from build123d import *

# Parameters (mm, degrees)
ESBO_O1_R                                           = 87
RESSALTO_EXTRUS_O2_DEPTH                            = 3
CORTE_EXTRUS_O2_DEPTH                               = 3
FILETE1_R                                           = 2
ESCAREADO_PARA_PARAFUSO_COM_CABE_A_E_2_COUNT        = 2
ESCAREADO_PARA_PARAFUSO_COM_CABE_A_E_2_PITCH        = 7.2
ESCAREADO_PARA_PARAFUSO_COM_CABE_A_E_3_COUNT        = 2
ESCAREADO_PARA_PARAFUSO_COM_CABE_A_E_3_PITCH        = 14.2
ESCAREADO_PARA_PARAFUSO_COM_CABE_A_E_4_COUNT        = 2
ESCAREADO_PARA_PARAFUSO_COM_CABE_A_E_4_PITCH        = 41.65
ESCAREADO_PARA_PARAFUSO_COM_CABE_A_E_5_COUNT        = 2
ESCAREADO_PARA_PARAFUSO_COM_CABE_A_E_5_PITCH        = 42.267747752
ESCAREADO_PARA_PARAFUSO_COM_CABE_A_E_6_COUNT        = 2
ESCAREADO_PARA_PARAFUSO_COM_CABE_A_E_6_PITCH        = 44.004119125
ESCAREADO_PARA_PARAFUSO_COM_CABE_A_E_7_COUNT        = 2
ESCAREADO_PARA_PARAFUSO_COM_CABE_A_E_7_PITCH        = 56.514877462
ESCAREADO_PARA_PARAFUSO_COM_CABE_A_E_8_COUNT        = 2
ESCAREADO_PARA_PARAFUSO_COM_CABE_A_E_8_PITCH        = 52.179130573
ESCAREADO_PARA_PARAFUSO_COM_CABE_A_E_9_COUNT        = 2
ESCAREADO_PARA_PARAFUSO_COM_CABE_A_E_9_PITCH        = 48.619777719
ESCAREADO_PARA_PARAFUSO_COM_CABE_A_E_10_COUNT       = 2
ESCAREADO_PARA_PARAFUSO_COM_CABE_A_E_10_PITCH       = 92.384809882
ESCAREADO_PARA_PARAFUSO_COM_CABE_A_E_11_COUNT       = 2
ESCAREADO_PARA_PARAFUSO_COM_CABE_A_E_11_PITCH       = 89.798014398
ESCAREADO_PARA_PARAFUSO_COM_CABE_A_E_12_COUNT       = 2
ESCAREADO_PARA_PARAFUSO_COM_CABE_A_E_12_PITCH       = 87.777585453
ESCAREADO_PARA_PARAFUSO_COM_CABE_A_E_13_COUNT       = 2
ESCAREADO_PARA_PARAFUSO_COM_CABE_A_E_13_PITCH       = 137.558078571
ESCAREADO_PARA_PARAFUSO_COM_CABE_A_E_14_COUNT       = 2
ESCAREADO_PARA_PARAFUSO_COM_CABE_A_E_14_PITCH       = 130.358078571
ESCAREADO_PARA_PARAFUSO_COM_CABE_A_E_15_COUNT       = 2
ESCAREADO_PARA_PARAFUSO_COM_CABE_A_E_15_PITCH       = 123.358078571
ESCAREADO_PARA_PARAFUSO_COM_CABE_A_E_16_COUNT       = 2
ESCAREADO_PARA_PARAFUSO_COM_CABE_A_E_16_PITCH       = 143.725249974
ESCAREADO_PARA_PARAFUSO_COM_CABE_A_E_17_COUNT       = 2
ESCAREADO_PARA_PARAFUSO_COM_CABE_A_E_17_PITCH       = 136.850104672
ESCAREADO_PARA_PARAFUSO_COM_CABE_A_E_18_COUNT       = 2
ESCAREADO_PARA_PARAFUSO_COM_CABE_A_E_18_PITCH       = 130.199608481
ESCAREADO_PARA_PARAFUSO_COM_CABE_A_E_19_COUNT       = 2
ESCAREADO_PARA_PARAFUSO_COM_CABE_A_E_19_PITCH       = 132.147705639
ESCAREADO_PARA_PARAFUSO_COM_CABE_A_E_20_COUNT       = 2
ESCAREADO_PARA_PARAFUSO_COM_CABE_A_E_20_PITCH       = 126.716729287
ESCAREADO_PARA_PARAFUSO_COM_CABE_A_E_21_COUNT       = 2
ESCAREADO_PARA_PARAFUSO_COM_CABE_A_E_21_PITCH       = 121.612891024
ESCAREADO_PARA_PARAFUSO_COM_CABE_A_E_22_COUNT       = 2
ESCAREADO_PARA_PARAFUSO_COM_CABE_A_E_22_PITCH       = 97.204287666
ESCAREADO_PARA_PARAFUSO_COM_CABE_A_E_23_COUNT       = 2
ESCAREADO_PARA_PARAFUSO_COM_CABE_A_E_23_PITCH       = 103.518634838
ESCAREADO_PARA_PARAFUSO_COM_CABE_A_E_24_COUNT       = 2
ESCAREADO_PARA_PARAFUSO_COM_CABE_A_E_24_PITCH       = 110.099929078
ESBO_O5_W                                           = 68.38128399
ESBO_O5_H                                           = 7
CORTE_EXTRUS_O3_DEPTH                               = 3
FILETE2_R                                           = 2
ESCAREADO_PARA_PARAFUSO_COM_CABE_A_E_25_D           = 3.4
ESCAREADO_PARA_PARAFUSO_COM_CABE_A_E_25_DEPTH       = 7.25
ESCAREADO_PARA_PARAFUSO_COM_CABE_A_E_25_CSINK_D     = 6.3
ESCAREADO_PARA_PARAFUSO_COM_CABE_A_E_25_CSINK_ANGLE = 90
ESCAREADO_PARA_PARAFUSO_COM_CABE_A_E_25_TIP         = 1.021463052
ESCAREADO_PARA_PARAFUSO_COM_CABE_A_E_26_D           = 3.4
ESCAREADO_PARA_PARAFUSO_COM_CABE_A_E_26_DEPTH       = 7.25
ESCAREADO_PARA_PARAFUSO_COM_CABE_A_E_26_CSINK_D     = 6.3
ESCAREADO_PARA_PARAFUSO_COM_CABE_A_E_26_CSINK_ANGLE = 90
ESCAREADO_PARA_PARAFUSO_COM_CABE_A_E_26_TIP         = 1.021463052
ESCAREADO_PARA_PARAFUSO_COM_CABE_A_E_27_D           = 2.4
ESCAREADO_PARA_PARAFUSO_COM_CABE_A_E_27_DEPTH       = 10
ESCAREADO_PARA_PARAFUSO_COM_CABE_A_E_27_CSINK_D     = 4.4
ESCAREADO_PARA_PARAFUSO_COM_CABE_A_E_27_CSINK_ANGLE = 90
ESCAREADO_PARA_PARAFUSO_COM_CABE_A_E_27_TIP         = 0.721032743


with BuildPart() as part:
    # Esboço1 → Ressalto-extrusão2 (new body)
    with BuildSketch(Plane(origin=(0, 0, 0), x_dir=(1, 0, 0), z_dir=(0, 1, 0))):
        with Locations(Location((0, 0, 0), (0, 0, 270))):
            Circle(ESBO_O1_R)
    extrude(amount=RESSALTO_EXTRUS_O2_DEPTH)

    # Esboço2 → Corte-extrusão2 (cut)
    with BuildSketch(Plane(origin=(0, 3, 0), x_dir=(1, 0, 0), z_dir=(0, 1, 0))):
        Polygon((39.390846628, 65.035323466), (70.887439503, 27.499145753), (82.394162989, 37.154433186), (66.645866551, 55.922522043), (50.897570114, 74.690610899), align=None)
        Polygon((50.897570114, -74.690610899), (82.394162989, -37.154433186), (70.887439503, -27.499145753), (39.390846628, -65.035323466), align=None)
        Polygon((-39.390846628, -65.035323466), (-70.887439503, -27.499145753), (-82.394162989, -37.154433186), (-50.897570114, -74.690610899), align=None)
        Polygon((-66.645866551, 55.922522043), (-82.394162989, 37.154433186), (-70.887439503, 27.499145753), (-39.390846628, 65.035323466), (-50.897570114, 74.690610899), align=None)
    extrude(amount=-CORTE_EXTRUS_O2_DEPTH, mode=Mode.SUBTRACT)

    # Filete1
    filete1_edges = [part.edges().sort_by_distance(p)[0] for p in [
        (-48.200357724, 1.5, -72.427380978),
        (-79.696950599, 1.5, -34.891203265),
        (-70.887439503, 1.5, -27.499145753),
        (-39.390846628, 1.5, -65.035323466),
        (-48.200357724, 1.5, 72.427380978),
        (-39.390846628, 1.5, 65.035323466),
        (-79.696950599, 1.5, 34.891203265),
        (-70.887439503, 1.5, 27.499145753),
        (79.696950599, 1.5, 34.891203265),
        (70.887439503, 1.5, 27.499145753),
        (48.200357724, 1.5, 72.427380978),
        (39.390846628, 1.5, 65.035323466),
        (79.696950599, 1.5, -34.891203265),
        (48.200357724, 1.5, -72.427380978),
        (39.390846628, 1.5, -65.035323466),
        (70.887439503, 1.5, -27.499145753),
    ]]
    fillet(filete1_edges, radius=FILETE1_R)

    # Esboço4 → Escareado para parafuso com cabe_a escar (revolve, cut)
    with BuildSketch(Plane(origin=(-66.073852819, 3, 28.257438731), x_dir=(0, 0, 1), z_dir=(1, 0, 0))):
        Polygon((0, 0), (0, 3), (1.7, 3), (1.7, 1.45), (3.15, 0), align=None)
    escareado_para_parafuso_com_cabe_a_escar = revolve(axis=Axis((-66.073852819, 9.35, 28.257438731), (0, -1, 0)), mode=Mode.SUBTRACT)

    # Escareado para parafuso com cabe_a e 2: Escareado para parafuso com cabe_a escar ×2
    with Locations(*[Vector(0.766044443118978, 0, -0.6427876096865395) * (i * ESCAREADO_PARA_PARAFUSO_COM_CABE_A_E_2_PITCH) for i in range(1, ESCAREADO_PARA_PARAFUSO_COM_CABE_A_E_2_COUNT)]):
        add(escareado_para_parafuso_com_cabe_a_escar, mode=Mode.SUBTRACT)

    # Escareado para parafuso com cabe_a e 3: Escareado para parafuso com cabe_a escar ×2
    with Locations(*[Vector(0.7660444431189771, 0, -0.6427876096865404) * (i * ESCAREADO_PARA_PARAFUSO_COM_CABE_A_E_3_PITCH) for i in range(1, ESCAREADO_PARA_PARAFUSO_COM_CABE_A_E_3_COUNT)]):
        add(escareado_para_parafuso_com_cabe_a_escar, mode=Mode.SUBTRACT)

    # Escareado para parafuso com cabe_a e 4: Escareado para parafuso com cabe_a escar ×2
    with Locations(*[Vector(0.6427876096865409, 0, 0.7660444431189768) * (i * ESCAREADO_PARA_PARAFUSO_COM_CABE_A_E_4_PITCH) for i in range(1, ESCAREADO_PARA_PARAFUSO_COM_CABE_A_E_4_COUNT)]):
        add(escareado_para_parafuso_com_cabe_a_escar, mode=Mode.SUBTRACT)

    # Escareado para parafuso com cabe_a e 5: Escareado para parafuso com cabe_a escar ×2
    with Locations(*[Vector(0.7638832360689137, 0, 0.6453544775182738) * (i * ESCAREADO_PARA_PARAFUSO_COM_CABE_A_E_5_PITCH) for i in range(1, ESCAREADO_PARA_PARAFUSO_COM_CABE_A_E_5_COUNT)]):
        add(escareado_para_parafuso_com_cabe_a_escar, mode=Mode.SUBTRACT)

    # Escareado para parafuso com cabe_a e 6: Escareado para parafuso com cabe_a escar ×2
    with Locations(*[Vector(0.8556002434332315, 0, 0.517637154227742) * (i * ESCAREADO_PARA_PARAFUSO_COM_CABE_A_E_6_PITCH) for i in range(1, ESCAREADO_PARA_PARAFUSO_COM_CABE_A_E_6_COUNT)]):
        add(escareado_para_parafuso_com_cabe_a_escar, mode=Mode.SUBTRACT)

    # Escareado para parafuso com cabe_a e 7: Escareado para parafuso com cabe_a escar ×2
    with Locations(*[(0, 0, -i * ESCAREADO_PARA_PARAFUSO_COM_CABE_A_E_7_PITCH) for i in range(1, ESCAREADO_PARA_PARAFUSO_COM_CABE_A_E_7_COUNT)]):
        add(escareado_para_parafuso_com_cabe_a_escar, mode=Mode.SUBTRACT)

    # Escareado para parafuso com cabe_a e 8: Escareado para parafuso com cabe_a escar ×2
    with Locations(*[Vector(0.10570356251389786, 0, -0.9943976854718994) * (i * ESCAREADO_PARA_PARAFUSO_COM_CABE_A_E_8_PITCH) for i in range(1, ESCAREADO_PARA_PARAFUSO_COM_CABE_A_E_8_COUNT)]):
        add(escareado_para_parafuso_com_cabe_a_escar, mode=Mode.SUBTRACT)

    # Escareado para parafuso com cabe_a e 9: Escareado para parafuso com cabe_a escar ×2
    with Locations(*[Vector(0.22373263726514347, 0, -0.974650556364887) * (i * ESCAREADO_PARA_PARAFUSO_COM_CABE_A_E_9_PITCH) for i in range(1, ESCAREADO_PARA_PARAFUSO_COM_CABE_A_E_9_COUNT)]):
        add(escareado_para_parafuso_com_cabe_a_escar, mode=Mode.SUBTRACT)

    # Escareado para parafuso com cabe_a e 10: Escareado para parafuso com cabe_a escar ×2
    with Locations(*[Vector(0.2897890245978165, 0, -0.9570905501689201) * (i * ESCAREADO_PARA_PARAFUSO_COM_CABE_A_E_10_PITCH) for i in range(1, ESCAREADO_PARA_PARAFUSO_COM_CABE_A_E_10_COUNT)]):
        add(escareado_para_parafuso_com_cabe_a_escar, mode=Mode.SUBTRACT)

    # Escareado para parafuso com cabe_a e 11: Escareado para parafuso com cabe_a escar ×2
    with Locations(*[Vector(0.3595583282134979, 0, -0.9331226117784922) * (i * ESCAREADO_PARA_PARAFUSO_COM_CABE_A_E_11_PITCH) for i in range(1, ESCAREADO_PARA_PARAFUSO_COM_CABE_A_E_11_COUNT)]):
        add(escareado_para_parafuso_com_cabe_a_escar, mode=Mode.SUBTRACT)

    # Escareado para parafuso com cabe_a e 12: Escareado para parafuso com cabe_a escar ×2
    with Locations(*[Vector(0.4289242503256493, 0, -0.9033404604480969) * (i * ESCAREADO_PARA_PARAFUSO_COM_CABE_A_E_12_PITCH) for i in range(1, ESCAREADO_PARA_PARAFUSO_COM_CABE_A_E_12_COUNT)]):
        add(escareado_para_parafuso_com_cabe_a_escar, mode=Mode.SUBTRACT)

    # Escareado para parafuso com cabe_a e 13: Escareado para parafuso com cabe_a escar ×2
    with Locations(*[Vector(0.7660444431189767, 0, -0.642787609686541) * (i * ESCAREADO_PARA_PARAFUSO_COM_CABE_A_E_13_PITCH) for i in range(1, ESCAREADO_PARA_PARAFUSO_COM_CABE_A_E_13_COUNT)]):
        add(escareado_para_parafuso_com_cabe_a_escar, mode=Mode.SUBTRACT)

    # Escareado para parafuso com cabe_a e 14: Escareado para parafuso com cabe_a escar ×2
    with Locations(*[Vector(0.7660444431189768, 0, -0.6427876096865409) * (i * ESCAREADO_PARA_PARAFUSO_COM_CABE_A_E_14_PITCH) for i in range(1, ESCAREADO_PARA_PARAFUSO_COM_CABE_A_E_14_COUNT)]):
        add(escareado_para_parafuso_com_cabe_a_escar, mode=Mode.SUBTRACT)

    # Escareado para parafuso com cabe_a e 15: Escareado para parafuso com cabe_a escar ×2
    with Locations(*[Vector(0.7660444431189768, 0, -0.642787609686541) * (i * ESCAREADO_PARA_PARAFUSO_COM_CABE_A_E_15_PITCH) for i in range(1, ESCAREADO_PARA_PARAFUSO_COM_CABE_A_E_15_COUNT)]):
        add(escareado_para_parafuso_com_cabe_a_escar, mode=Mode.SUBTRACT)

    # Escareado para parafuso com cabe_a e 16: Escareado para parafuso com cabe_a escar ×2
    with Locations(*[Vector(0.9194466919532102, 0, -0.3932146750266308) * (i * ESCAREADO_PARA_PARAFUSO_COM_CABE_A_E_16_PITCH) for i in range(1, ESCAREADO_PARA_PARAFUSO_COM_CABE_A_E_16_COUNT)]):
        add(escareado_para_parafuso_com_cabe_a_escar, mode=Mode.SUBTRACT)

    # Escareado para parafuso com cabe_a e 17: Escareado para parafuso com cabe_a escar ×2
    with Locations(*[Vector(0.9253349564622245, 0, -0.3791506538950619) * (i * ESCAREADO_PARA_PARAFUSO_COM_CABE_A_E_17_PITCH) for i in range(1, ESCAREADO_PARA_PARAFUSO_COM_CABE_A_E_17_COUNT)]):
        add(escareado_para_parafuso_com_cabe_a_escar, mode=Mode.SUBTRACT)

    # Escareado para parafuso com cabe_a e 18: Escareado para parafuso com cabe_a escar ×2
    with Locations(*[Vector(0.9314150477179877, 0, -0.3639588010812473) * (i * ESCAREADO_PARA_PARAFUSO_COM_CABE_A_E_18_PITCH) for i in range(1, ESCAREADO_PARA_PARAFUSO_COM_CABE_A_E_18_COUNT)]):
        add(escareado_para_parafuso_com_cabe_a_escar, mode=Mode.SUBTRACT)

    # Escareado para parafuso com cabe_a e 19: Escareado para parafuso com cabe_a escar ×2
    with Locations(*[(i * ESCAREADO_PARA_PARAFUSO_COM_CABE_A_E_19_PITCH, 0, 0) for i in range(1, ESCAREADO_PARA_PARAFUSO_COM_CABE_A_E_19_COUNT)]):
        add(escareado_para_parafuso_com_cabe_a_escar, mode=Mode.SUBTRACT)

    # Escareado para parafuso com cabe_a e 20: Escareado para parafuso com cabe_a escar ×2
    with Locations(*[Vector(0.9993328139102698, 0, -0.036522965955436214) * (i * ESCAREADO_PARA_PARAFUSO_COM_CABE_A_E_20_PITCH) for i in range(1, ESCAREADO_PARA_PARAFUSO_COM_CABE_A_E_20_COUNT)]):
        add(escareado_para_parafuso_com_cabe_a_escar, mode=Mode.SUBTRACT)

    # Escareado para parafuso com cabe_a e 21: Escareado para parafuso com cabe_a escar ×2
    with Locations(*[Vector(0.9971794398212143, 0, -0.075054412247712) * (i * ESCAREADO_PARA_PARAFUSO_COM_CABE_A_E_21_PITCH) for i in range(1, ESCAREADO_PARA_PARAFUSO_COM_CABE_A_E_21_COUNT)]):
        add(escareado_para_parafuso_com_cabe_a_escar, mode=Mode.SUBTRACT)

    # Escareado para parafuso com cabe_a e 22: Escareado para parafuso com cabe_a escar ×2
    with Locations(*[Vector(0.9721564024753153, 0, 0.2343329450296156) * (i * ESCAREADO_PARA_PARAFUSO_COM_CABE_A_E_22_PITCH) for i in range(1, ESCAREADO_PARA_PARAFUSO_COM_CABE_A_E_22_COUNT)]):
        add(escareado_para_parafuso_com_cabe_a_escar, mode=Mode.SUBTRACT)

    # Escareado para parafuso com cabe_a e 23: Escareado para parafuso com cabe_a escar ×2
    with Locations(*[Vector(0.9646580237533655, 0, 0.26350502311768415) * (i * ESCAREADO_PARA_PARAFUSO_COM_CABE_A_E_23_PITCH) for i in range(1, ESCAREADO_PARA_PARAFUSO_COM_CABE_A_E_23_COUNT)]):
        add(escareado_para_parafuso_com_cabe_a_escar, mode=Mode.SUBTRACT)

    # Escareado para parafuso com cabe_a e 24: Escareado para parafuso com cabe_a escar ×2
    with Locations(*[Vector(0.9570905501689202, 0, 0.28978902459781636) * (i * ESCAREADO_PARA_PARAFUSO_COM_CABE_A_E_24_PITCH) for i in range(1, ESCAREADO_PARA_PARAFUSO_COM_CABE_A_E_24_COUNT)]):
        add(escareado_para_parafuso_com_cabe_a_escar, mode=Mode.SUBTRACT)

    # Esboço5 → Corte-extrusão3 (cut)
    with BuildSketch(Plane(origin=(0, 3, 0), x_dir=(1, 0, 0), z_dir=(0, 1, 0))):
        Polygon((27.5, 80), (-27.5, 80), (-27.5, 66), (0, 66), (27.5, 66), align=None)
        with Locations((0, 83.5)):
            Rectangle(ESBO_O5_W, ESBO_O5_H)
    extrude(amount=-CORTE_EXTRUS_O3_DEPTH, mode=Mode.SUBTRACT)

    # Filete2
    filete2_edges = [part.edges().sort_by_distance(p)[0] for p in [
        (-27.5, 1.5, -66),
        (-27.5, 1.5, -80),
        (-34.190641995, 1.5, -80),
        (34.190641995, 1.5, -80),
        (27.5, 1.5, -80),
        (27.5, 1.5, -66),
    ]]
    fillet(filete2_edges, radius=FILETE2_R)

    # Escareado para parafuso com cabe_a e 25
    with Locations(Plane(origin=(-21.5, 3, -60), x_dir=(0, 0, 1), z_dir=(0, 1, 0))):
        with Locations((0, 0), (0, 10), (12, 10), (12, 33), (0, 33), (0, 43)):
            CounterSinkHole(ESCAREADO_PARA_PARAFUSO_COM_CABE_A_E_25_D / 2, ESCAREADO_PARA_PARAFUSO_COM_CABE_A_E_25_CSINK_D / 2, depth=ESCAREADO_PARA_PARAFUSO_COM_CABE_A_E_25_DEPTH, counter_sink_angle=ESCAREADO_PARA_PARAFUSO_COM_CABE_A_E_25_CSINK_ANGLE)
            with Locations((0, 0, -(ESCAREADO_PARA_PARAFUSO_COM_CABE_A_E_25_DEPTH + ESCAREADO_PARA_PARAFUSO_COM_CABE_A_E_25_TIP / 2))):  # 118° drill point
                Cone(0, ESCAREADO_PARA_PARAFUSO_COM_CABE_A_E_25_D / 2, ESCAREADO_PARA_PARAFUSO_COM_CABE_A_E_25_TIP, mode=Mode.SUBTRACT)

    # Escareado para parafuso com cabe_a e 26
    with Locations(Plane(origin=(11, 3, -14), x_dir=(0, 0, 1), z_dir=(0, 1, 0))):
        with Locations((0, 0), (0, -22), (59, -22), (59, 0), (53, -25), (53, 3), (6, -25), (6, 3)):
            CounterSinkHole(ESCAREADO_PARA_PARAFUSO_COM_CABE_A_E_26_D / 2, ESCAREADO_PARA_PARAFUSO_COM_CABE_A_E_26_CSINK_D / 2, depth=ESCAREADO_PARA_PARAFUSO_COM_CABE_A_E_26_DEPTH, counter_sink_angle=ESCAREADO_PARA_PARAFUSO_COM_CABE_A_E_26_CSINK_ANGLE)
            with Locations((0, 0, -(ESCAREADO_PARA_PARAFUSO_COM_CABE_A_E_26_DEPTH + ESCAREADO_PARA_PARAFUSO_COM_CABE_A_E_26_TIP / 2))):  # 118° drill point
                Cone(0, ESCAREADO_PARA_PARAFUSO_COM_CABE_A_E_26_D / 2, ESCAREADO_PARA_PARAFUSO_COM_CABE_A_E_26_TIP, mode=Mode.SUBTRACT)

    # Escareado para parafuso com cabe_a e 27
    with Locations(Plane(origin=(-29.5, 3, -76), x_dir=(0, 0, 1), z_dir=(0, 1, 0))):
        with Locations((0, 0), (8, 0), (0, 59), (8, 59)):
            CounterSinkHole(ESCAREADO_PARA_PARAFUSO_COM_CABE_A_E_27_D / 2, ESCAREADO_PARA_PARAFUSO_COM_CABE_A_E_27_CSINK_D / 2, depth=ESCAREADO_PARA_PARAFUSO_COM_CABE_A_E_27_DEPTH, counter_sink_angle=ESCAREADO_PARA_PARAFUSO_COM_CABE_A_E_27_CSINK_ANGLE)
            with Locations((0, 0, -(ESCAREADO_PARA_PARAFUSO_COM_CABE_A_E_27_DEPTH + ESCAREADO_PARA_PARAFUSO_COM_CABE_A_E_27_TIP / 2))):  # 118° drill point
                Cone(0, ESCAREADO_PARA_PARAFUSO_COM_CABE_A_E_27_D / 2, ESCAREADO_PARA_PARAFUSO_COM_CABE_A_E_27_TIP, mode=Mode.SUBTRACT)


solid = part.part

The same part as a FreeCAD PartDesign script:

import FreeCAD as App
import Part
import Sketcher

V = App.Vector
Q = App.Units.Quantity


def edges_at(feature, points):
    """Names of the edges that pass closest to the given points."""
    edges = feature.Shape.Edges
    near = lambda p: min(range(len(edges)), key=lambda i: edges[i].distToShape(Part.Vertex(*p))[0])
    return sorted({f"Edge{near(p) + 1}" for p in points})

doc = App.newDocument("Part")
body = doc.addObject("PartDesign::Body", "Body")

sketch1 = doc.addObject("Sketcher::SketchObject", "Sketch")
body.addObject(sketch1)
sketch1.AttachmentSupport = (doc.XZ_Plane, [""])
sketch1.MapMode = "FlatFace"
sketch1.addGeometry(Part.Circle(V(0, 0, 0), V(0, 0, 1), 87), False)
sketch1.addConstraint([
    Sketcher.Constraint("Coincident", 0, 3, -1, 1),
    Sketcher.Constraint("Diameter", 0, 174.0),
])
pad1 = doc.addObject("PartDesign::Pad", "Pad")
body.addObject(pad1)
pad1.Profile = sketch1
pad1.Length = 3
pad1.Reversed = True

sketch2 = doc.addObject("Sketcher::SketchObject", "Sketch001")
body.addObject(sketch2)
sketch2.AttachmentSupport = (doc.XZ_Plane, [""])
sketch2.MapMode = "FlatFace"
sketch2.AttachmentOffset = App.Placement(V(0, 0, -3), App.Rotation())
sketch2.addGeometry([
    Part.LineSegment(V(39, -65, 0), V(71, -27, 0)),
    Part.LineSegment(V(71, -27, 0), V(82, -37, 0)),
    Part.LineSegment(V(82, -37, 0), V(67, -56, 0)),
    Part.LineSegment(V(67, -56, 0), V(51, -75, 0)),
    Part.LineSegment(V(51, -75, 0), V(39, -65, 0)),
    Part.LineSegment(V(51, 75, 0), V(82, 37, 0)),
    Part.LineSegment(V(82, 37, 0), V(71, 27, 0)),
    Part.LineSegment(V(71, 27, 0), V(39, 65, 0)),
    Part.LineSegment(V(39, 65, 0), V(51, 75, 0)),
    Part.LineSegment(V(-39, 65, 0), V(-71, 27, 0)),
    Part.LineSegment(V(-71, 27, 0), V(-82, 37, 0)),
    Part.LineSegment(V(-82, 37, 0), V(-51, 75, 0)),
    Part.LineSegment(V(-51, 75, 0), V(-39, 65, 0)),
    Part.LineSegment(V(-67, -56, 0), V(-82, -37, 0)),
    Part.LineSegment(V(-82, -37, 0), V(-71, -27, 0)),
    Part.LineSegment(V(-71, -27, 0), V(-39, -65, 0)),
    Part.LineSegment(V(-39, -65, 0), V(-51, -75, 0)),
    Part.LineSegment(V(-51, -75, 0), V(-67, -56, 0)),
], False)
sketch2.addConstraint([
    Sketcher.Constraint("Coincident", 0, 2, 1, 1),
    Sketcher.Constraint("Coincident", 1, 2, 2, 1),
    Sketcher.Constraint("Coincident", 2, 2, 3, 1),
    Sketcher.Constraint("Coincident", 3, 2, 4, 1),
    Sketcher.Constraint("Coincident", 4, 2, 0, 1),
    Sketcher.Constraint("Coincident", 5, 2, 6, 1),
    Sketcher.Constraint("Coincident", 6, 2, 7, 1),
    Sketcher.Constraint("Coincident", 7, 2, 8, 1),
    Sketcher.Constraint("Coincident", 8, 2, 5, 1),
    Sketcher.Constraint("Coincident", 9, 2, 10, 1),
    Sketcher.Constraint("Coincident", 10, 2, 11, 1),
    Sketcher.Constraint("Coincident", 11, 2, 12, 1),
    Sketcher.Constraint("Coincident", 12, 2, 9, 1),
    Sketcher.Constraint("Coincident", 13, 2, 14, 1),
    Sketcher.Constraint("Coincident", 14, 2, 15, 1),
    Sketcher.Constraint("Coincident", 15, 2, 16, 1),
    Sketcher.Constraint("Coincident", 16, 2, 17, 1),
    Sketcher.Constraint("Coincident", 17, 2, 13, 1),
    Sketcher.Constraint("Symmetric", 0, 2, 9, 2, -1, 1),
    Sketcher.Constraint("Symmetric", 1, 2, 10, 2, -1, 1),
    Sketcher.Constraint("Symmetric", 3, 2, 11, 2, -1, 1),
    Sketcher.Constraint("Symmetric", 4, 2, 12, 2, -1, 1),
    Sketcher.Constraint("Symmetric", 5, 2, 13, 2, -1, 1),
    Sketcher.Constraint("Symmetric", 6, 2, 14, 2, -1, 1),
    Sketcher.Constraint("Symmetric", 7, 2, 15, 2, -1, 1),
    Sketcher.Constraint("Symmetric", 8, 2, 16, 2, -1, 1),
    Sketcher.Constraint("Symmetric", 6, 2, 9, 2, -2),
    Sketcher.Constraint("Symmetric", 5, 2, 10, 2, -2),
    Sketcher.Constraint("Symmetric", 8, 2, 11, 2, -2),
    Sketcher.Constraint("Symmetric", 7, 2, 12, 2, -2),
    Sketcher.Constraint("Symmetric", 2, 2, 17, 2, -2),
    Sketcher.Constraint("Perpendicular", 0, 1),
    Sketcher.Constraint("Perpendicular", 1, 2),
    Sketcher.Constraint("Parallel", 2, 3),
    Sketcher.Constraint("Perpendicular", 3, 4),
    Sketcher.Constraint("Equal", 2, 3),
    Sketcher.Constraint("Angle", 0, Q("50 deg")),
    Sketcher.Constraint("Distance", 0, 49.0),
    Sketcher.Constraint("DistanceY", 4, 2, 2, 2, 9.112801),
    Sketcher.Constraint("DistanceX", -1, 1, 0, 2, 70.88744),
    Sketcher.Constraint("DistanceY", 3, 2, -1, 1, 74.690611),
])
pocket1 = doc.addObject("PartDesign::Pocket", "Pocket")
body.addObject(pocket1)
pocket1.Profile = sketch2
pocket1.Length = 3
pocket1.Reversed = True
doc.recompute()

fillet = doc.addObject("PartDesign::Fillet", "Fillet")
body.addObject(fillet)
fillet.Base = (pocket1, edges_at(pocket1, [
    (-48.2, 1.5, -72.427),
    (-79.697, 1.5, -34.891),
    (-70.887, 1.5, -27.499),
    (-39.391, 1.5, -65.035),
    (-48.2, 1.5, 72.427),
    (-39.391, 1.5, 65.035),
    (-79.697, 1.5, 34.891),
    (-70.887, 1.5, 27.499),
    (79.697, 1.5, 34.891),
    (70.887, 1.5, 27.499),
    (48.2, 1.5, 72.427),
    (39.391, 1.5, 65.035),
    (79.697, 1.5, -34.891),
    (48.2, 1.5, -72.427),
    (39.391, 1.5, -65.035),
    (70.887, 1.5, -27.499),
]))
fillet.Radius = 2

sketch3 = doc.addObject("Sketcher::SketchObject", "Sketch002")
body.addObject(sketch3)
sketch3.AttachmentSupport = (doc.YZ_Plane, [""])
sketch3.MapMode = "FlatFace"
sketch3.AttachmentOffset = App.Placement(V(0, 0, -66.073853), App.Rotation())
sketch3.addGeometry([
    Part.LineSegment(V(0, 28.3, 0), V(3, 28.3, 0)),
    Part.LineSegment(V(3, 28.3, 0), V(3, 31.4, 0)),
    Part.LineSegment(V(3, 31.4, 0), V(1.6, 30, 0)),
    Part.LineSegment(V(1.6, 30, 0), V(0, 30, 0)),
    Part.LineSegment(V(0, 30, 0), V(0, 28.3, 0)),
], False)
sketch3.addGeometry(Part.LineSegment(V(3, 28.3, 0), V(0, 28.3, 0)), True)
sketch3.addConstraint([
    Sketcher.Constraint("Coincident", 0, 2, 1, 1),
    Sketcher.Constraint("Coincident", 1, 2, 2, 1),
    Sketcher.Constraint("Coincident", 2, 2, 3, 1),
    Sketcher.Constraint("Coincident", 3, 2, 4, 1),
    Sketcher.Constraint("Coincident", 4, 2, 0, 1),
    Sketcher.Constraint("Horizontal", 0),
    Sketcher.Constraint("Vertical", 1),
    Sketcher.Constraint("Horizontal", 3),
    Sketcher.Constraint("Vertical", 4),
    Sketcher.Constraint("Horizontal", 5),
    Sketcher.Constraint("Coincident", 5, 1, 0, 2),
    Sketcher.Constraint("PointOnObject", 3, 2, -2),
    Sketcher.Constraint("PointOnObject", 5, 2, -2),
    Sketcher.Constraint("DistanceX", 0, 1, 0, 2, 3.0),
    Sketcher.Constraint("Angle", 2, Q("-135 deg")),
    Sketcher.Constraint("DistanceY", 4, 2, 4, 1, 1.7),
    Sketcher.Constraint("DistanceX", 3, 2, 3, 1, 1.55),
    Sketcher.Constraint("DistanceY", -1, 1, 0, 2, 28.257439),
])
groove = doc.addObject("PartDesign::Groove", "Groove")
body.addObject(groove)
groove.Profile = sketch3
groove.ReferenceAxis = (sketch3, ["Axis0"])
groove.Angle = 360
doc.recompute()

datumline = doc.addObject("PartDesign::Line", "DatumLine")
body.addObject(datumline)
datumline.Placement = App.Placement(V(0, 0, 0), App.Rotation(V(0, 0, 1), V(0.766044443, 0, -0.64278761)))
linearpattern = doc.addObject("PartDesign::LinearPattern", "LinearPattern")
body.addObject(linearpattern)
linearpattern.Originals = [groove]
linearpattern.Direction = (datumline, [""])
linearpattern.Mode = "offset"
linearpattern.Offset = 7.2
linearpattern.Occurrences = 2
body.Tip = linearpattern
doc.recompute()

datumline2 = doc.addObject("PartDesign::Line", "DatumLine001")
body.addObject(datumline2)
datumline2.Placement = App.Placement(V(0, 0, 0), App.Rotation(V(0, 0, 1), V(0.766044443, 0, -0.64278761)))
linearpattern2 = doc.addObject("PartDesign::LinearPattern", "LinearPattern001")
body.addObject(linearpattern2)
linearpattern2.Originals = [groove]
linearpattern2.Direction = (datumline2, [""])
linearpattern2.Mode = "offset"
linearpattern2.Offset = 14.2
linearpattern2.Occurrences = 2
body.Tip = linearpattern2
doc.recompute()

datumline3 = doc.addObject("PartDesign::Line", "DatumLine002")
body.addObject(datumline3)
datumline3.Placement = App.Placement(V(0, 0, 0), App.Rotation(V(0, 0, 1), V(0.64278761, 0, 0.766044443)))
linearpattern3 = doc.addObject("PartDesign::LinearPattern", "LinearPattern002")
body.addObject(linearpattern3)
linearpattern3.Originals = [groove]
linearpattern3.Direction = (datumline3, [""])
linearpattern3.Mode = "offset"
linearpattern3.Offset = 41.65
linearpattern3.Occurrences = 2
body.Tip = linearpattern3
doc.recompute()

datumline4 = doc.addObject("PartDesign::Line", "DatumLine003")
body.addObject(datumline4)
datumline4.Placement = App.Placement(V(0, 0, 0), App.Rotation(V(0, 0, 1), V(0.763883236, 0, 0.645354478)))
linearpattern4 = doc.addObject("PartDesign::LinearPattern", "LinearPattern003")
body.addObject(linearpattern4)
linearpattern4.Originals = [groove]
linearpattern4.Direction = (datumline4, [""])
linearpattern4.Mode = "offset"
linearpattern4.Offset = 42.267748
linearpattern4.Occurrences = 2
body.Tip = linearpattern4
doc.recompute()

datumline5 = doc.addObject("PartDesign::Line", "DatumLine004")
body.addObject(datumline5)
datumline5.Placement = App.Placement(V(0, 0, 0), App.Rotation(V(0, 0, 1), V(0.855600243, 0, 0.517637154)))
linearpattern5 = doc.addObject("PartDesign::LinearPattern", "LinearPattern004")
body.addObject(linearpattern5)
linearpattern5.Originals = [groove]
linearpattern5.Direction = (datumline5, [""])
linearpattern5.Mode = "offset"
linearpattern5.Offset = 44.004119
linearpattern5.Occurrences = 2
body.Tip = linearpattern5
doc.recompute()

linearpattern6 = doc.addObject("PartDesign::LinearPattern", "LinearPattern005")
body.addObject(linearpattern6)
linearpattern6.Originals = [groove]
linearpattern6.Direction = (doc.Z_Axis, [""])
linearpattern6.Mode = "offset"
linearpattern6.Offset = 56.514877
linearpattern6.Occurrences = 2
linearpattern6.Reversed = True
body.Tip = linearpattern6
doc.recompute()

datumline6 = doc.addObject("PartDesign::Line", "DatumLine005")
body.addObject(datumline6)
datumline6.Placement = App.Placement(V(0, 0, 0), App.Rotation(V(0, 0, 1), V(0.105703563, 0, -0.994397685)))
linearpattern7 = doc.addObject("PartDesign::LinearPattern", "LinearPattern006")
body.addObject(linearpattern7)
linearpattern7.Originals = [groove]
linearpattern7.Direction = (datumline6, [""])
linearpattern7.Mode = "offset"
linearpattern7.Offset = 52.179131
linearpattern7.Occurrences = 2
body.Tip = linearpattern7
doc.recompute()

datumline7 = doc.addObject("PartDesign::Line", "DatumLine006")
body.addObject(datumline7)
datumline7.Placement = App.Placement(V(0, 0, 0), App.Rotation(V(0, 0, 1), V(0.223732637, 0, -0.974650556)))
linearpattern8 = doc.addObject("PartDesign::LinearPattern", "LinearPattern007")
body.addObject(linearpattern8)
linearpattern8.Originals = [groove]
linearpattern8.Direction = (datumline7, [""])
linearpattern8.Mode = "offset"
linearpattern8.Offset = 48.619778
linearpattern8.Occurrences = 2
body.Tip = linearpattern8
doc.recompute()

datumline8 = doc.addObject("PartDesign::Line", "DatumLine007")
body.addObject(datumline8)
datumline8.Placement = App.Placement(V(0, 0, 0), App.Rotation(V(0, 0, 1), V(0.289789025, 0, -0.95709055)))
linearpattern9 = doc.addObject("PartDesign::LinearPattern", "LinearPattern008")
body.addObject(linearpattern9)
linearpattern9.Originals = [groove]
linearpattern9.Direction = (datumline8, [""])
linearpattern9.Mode = "offset"
linearpattern9.Offset = 92.38481
linearpattern9.Occurrences = 2
body.Tip = linearpattern9
doc.recompute()

datumline9 = doc.addObject("PartDesign::Line", "DatumLine008")
body.addObject(datumline9)
datumline9.Placement = App.Placement(V(0, 0, 0), App.Rotation(V(0, 0, 1), V(0.359558328, 0, -0.933122612)))
linearpattern10 = doc.addObject("PartDesign::LinearPattern", "LinearPattern009")
body.addObject(linearpattern10)
linearpattern10.Originals = [groove]
linearpattern10.Direction = (datumline9, [""])
linearpattern10.Mode = "offset"
linearpattern10.Offset = 89.798014
linearpattern10.Occurrences = 2
body.Tip = linearpattern10
doc.recompute()

datumline10 = doc.addObject("PartDesign::Line", "DatumLine009")
body.addObject(datumline10)
datumline10.Placement = App.Placement(V(0, 0, 0), App.Rotation(V(0, 0, 1), V(0.42892425, 0, -0.90334046)))
linearpattern11 = doc.addObject("PartDesign::LinearPattern", "LinearPattern010")
body.addObject(linearpattern11)
linearpattern11.Originals = [groove]
linearpattern11.Direction = (datumline10, [""])
linearpattern11.Mode = "offset"
linearpattern11.Offset = 87.777585
linearpattern11.Occurrences = 2
body.Tip = linearpattern11
doc.recompute()

datumline11 = doc.addObject("PartDesign::Line", "DatumLine010")
body.addObject(datumline11)
datumline11.Placement = App.Placement(V(0, 0, 0), App.Rotation(V(0, 0, 1), V(0.766044443, 0, -0.64278761)))
linearpattern12 = doc.addObject("PartDesign::LinearPattern", "LinearPattern011")
body.addObject(linearpattern12)
linearpattern12.Originals = [groove]
linearpattern12.Direction = (datumline11, [""])
linearpattern12.Mode = "offset"
linearpattern12.Offset = 137.558079
linearpattern12.Occurrences = 2
body.Tip = linearpattern12
doc.recompute()

datumline12 = doc.addObject("PartDesign::Line", "DatumLine011")
body.addObject(datumline12)
datumline12.Placement = App.Placement(V(0, 0, 0), App.Rotation(V(0, 0, 1), V(0.766044443, 0, -0.64278761)))
linearpattern13 = doc.addObject("PartDesign::LinearPattern", "LinearPattern012")
body.addObject(linearpattern13)
linearpattern13.Originals = [groove]
linearpattern13.Direction = (datumline12, [""])
linearpattern13.Mode = "offset"
linearpattern13.Offset = 130.358079
linearpattern13.Occurrences = 2
body.Tip = linearpattern13
doc.recompute()

datumline13 = doc.addObject("PartDesign::Line", "DatumLine012")
body.addObject(datumline13)
datumline13.Placement = App.Placement(V(0, 0, 0), App.Rotation(V(0, 0, 1), V(0.766044443, 0, -0.64278761)))
linearpattern14 = doc.addObject("PartDesign::LinearPattern", "LinearPattern013")
body.addObject(linearpattern14)
linearpattern14.Originals = [groove]
linearpattern14.Direction = (datumline13, [""])
linearpattern14.Mode = "offset"
linearpattern14.Offset = 123.358079
linearpattern14.Occurrences = 2
body.Tip = linearpattern14
doc.recompute()

datumline14 = doc.addObject("PartDesign::Line", "DatumLine013")
body.addObject(datumline14)
datumline14.Placement = App.Placement(V(0, 0, 0), App.Rotation(V(0, 0, 1), V(0.919446692, 0, -0.393214675)))
linearpattern15 = doc.addObject("PartDesign::LinearPattern", "LinearPattern014")
body.addObject(linearpattern15)
linearpattern15.Originals = [groove]
linearpattern15.Direction = (datumline14, [""])
linearpattern15.Mode = "offset"
linearpattern15.Offset = 143.72525
linearpattern15.Occurrences = 2
body.Tip = linearpattern15
doc.recompute()

datumline15 = doc.addObject("PartDesign::Line", "DatumLine014")
body.addObject(datumline15)
datumline15.Placement = App.Placement(V(0, 0, 0), App.Rotation(V(0, 0, 1), V(0.925334956, 0, -0.379150654)))
linearpattern16 = doc.addObject("PartDesign::LinearPattern", "LinearPattern015")
body.addObject(linearpattern16)
linearpattern16.Originals = [groove]
linearpattern16.Direction = (datumline15, [""])
linearpattern16.Mode = "offset"
linearpattern16.Offset = 136.850105
linearpattern16.Occurrences = 2
body.Tip = linearpattern16
doc.recompute()

datumline16 = doc.addObject("PartDesign::Line", "DatumLine015")
body.addObject(datumline16)
datumline16.Placement = App.Placement(V(0, 0, 0), App.Rotation(V(0, 0, 1), V(0.931415048, 0, -0.363958801)))
linearpattern17 = doc.addObject("PartDesign::LinearPattern", "LinearPattern016")
body.addObject(linearpattern17)
linearpattern17.Originals = [groove]
linearpattern17.Direction = (datumline16, [""])
linearpattern17.Mode = "offset"
linearpattern17.Offset = 130.199608
linearpattern17.Occurrences = 2
body.Tip = linearpattern17
doc.recompute()

linearpattern18 = doc.addObject("PartDesign::LinearPattern", "LinearPattern017")
body.addObject(linearpattern18)
linearpattern18.Originals = [groove]
linearpattern18.Direction = (doc.X_Axis, [""])
linearpattern18.Mode = "offset"
linearpattern18.Offset = 132.147706
linearpattern18.Occurrences = 2
body.Tip = linearpattern18
doc.recompute()

datumline17 = doc.addObject("PartDesign::Line", "DatumLine016")
body.addObject(datumline17)
datumline17.Placement = App.Placement(V(0, 0, 0), App.Rotation(V(0, 0, 1), V(0.999332814, 0, -0.036522966)))
linearpattern19 = doc.addObject("PartDesign::LinearPattern", "LinearPattern018")
body.addObject(linearpattern19)
linearpattern19.Originals = [groove]
linearpattern19.Direction = (datumline17, [""])
linearpattern19.Mode = "offset"
linearpattern19.Offset = 126.716729
linearpattern19.Occurrences = 2
body.Tip = linearpattern19
doc.recompute()

datumline18 = doc.addObject("PartDesign::Line", "DatumLine017")
body.addObject(datumline18)
datumline18.Placement = App.Placement(V(0, 0, 0), App.Rotation(V(0, 0, 1), V(0.99717944, 0, -0.075054412)))
linearpattern20 = doc.addObject("PartDesign::LinearPattern", "LinearPattern019")
body.addObject(linearpattern20)
linearpattern20.Originals = [groove]
linearpattern20.Direction = (datumline18, [""])
linearpattern20.Mode = "offset"
linearpattern20.Offset = 121.612891
linearpattern20.Occurrences = 2
body.Tip = linearpattern20
doc.recompute()

datumline19 = doc.addObject("PartDesign::Line", "DatumLine018")
body.addObject(datumline19)
datumline19.Placement = App.Placement(V(0, 0, 0), App.Rotation(V(0, 0, 1), V(0.972156402, 0, 0.234332945)))
linearpattern21 = doc.addObject("PartDesign::LinearPattern", "LinearPattern020")
body.addObject(linearpattern21)
linearpattern21.Originals = [groove]
linearpattern21.Direction = (datumline19, [""])
linearpattern21.Mode = "offset"
linearpattern21.Offset = 97.204288
linearpattern21.Occurrences = 2
body.Tip = linearpattern21
doc.recompute()

datumline20 = doc.addObject("PartDesign::Line", "DatumLine019")
body.addObject(datumline20)
datumline20.Placement = App.Placement(V(0, 0, 0), App.Rotation(V(0, 0, 1), V(0.964658024, 0, 0.263505023)))
linearpattern22 = doc.addObject("PartDesign::LinearPattern", "LinearPattern021")
body.addObject(linearpattern22)
linearpattern22.Originals = [groove]
linearpattern22.Direction = (datumline20, [""])
linearpattern22.Mode = "offset"
linearpattern22.Offset = 103.518635
linearpattern22.Occurrences = 2
body.Tip = linearpattern22
doc.recompute()

datumline21 = doc.addObject("PartDesign::Line", "DatumLine020")
body.addObject(datumline21)
datumline21.Placement = App.Placement(V(0, 0, 0), App.Rotation(V(0, 0, 1), V(0.95709055, 0, 0.289789025)))
linearpattern23 = doc.addObject("PartDesign::LinearPattern", "LinearPattern022")
body.addObject(linearpattern23)
linearpattern23.Originals = [groove]
linearpattern23.Direction = (datumline21, [""])
linearpattern23.Mode = "offset"
linearpattern23.Offset = 110.099929
linearpattern23.Occurrences = 2
body.Tip = linearpattern23

sketch4 = doc.addObject("Sketcher::SketchObject", "Sketch003")
body.addObject(sketch4)
sketch4.AttachmentSupport = (doc.XZ_Plane, [""])
sketch4.MapMode = "FlatFace"
sketch4.AttachmentOffset = App.Placement(V(0, 0, -3), App.Rotation())
sketch4.addGeometry([
    Part.LineSegment(V(-28, -80, 0), V(-28, -66, 0)),
    Part.LineSegment(V(-28, -66, 0), V(28, -66, 0)),
    Part.LineSegment(V(28, -66, 0), V(28, -80, 0)),
    Part.LineSegment(V(28, -80, 0), V(34, -80, 0)),
    Part.LineSegment(V(34, -80, 0), V(34, -87, 0)),
    Part.LineSegment(V(34, -87, 0), V(-34, -87, 0)),
    Part.LineSegment(V(-34, -87, 0), V(-34, -80, 0)),
    Part.LineSegment(V(-34, -80, 0), V(-28, -80, 0)),
], False)
sketch4.addConstraint([
    Sketcher.Constraint("Coincident", 0, 2, 1, 1),
    Sketcher.Constraint("Coincident", 1, 2, 2, 1),
    Sketcher.Constraint("Coincident", 2, 2, 3, 1),
    Sketcher.Constraint("Coincident", 3, 2, 4, 1),
    Sketcher.Constraint("Coincident", 4, 2, 5, 1),
    Sketcher.Constraint("Coincident", 5, 2, 6, 1),
    Sketcher.Constraint("Coincident", 6, 2, 7, 1),
    Sketcher.Constraint("Coincident", 7, 2, 0, 1),
    Sketcher.Constraint("Vertical", 0),
    Sketcher.Constraint("Horizontal", 1),
    Sketcher.Constraint("Vertical", 2),
    Sketcher.Constraint("Horizontal", 3),
    Sketcher.Constraint("Vertical", 4),
    Sketcher.Constraint("Horizontal", 5),
    Sketcher.Constraint("Vertical", 6),
    Sketcher.Constraint("Horizontal", 7),
    Sketcher.Constraint("Symmetric", 3, 2, 6, 2, -2),
    Sketcher.Constraint("Equal", 3, 7),
    Sketcher.Constraint("DistanceX", 1, 1, 1, 2, 55.0),
    Sketcher.Constraint("DistanceY", 0, 1, 0, 2, 14.0),
    Sketcher.Constraint("DistanceY", 4, 2, 4, 1, 7.0),
    Sketcher.Constraint("DistanceY", 0, 2, -1, 1, 66.0),
    Sketcher.Constraint("DistanceX", 3, 1, 3, 2, 6.690642),
])
pocket2 = doc.addObject("PartDesign::Pocket", "Pocket001")
body.addObject(pocket2)
pocket2.Profile = sketch4
pocket2.Length = 3
pocket2.Reversed = True
doc.recompute()

fillet2 = doc.addObject("PartDesign::Fillet", "Fillet001")
body.addObject(fillet2)
fillet2.Base = (pocket2, edges_at(pocket2, [
    (-27.5, 1.5, -66),
    (-27.5, 1.5, -80),
    (-34.191, 1.5, -80),
    (34.191, 1.5, -80),
    (27.5, 1.5, -80),
    (27.5, 1.5, -66),
]))
fillet2.Radius = 2

sketch5 = doc.addObject("Sketcher::SketchObject", "Sketch004")
body.addObject(sketch5)
sketch5.AttachmentSupport = (doc.XZ_Plane, [""])
sketch5.MapMode = "FlatFace"
sketch5.AttachmentOffset = App.Placement(V(0, 0, -3), App.Rotation())
sketch5.addGeometry([
    Part.Circle(V(-21.5, -60, 0), V(0, 0, 1), 1.7),
    Part.Circle(V(-11.5, -60, 0), V(0, 0, 1), 1.7),
    Part.Circle(V(-11.5, -48, 0), V(0, 0, 1), 1.7),
    Part.Circle(V(11.5, -48, 0), V(0, 0, 1), 1.7),
    Part.Circle(V(11.5, -60, 0), V(0, 0, 1), 1.7),
    Part.Circle(V(21.5, -60, 0), V(0, 0, 1), 1.7),
], False)
sketch5.addConstraint([
    Sketcher.Constraint("Equal", 0, 1),
    Sketcher.Constraint("Equal", 1, 2),
    Sketcher.Constraint("Equal", 2, 3),
    Sketcher.Constraint("Equal", 3, 4),
    Sketcher.Constraint("Equal", 4, 5),
    Sketcher.Constraint("Symmetric", 2, 3, 3, 3, -2),
    Sketcher.Constraint("Symmetric", 1, 3, 4, 3, -2),
    Sketcher.Constraint("Symmetric", 0, 3, 5, 3, -2),
    Sketcher.Constraint("Horizontal", 0, 3, 1, 3),
    Sketcher.Constraint("Vertical", 1, 3, 2, 3),
    Sketcher.Constraint("Diameter", 0, 3.4),
    Sketcher.Constraint("DistanceY", 0, 3, -1, 1, 60.0),
    Sketcher.Constraint("DistanceY", 2, 3, -1, 1, 48.0),
    Sketcher.Constraint("DistanceX", 0, 3, 1, 3, 10.0),
    Sketcher.Constraint("DistanceX", 2, 3, 3, 3, 23.0),
])
doc.recompute()
hole = doc.addObject("PartDesign::Hole", "Hole")
body.addObject(hole)
hole.Profile = sketch5
hole.ThreadType = "None"
hole.Diameter = 3.4
hole.DepthType = "Dimension"
hole.Depth = 7.25
hole.DrillPoint = "Angled"
hole.DrillPointAngle = 118
hole.HoleCutType = "Countersink"
hole.HoleCutDiameter = 6.3
hole.HoleCutCountersinkAngle = 90
hole.Reversed = True

sketch6 = doc.addObject("Sketcher::SketchObject", "Sketch005")
body.addObject(sketch6)
sketch6.AttachmentSupport = (doc.XZ_Plane, [""])
sketch6.MapMode = "FlatFace"
sketch6.AttachmentOffset = App.Placement(V(0, 0, -3), App.Rotation())
sketch6.addGeometry([
    Part.Circle(V(11, -14, 0), V(0, 0, 1), 1.7),
    Part.Circle(V(-11, -14, 0), V(0, 0, 1), 1.7),
    Part.Circle(V(-11, 45, 0), V(0, 0, 1), 1.7),
    Part.Circle(V(11, 45, 0), V(0, 0, 1), 1.7),
    Part.Circle(V(-14, 39, 0), V(0, 0, 1), 1.7),
    Part.Circle(V(14, 39, 0), V(0, 0, 1), 1.7),
    Part.Circle(V(-14, -8, 0), V(0, 0, 1), 1.7),
    Part.Circle(V(14, -8, 0), V(0, 0, 1), 1.7),
], False)
sketch6.addConstraint([
    Sketcher.Constraint("Equal", 0, 1),
    Sketcher.Constraint("Equal", 1, 2),
    Sketcher.Constraint("Equal", 2, 3),
    Sketcher.Constraint("Equal", 3, 4),
    Sketcher.Constraint("Equal", 4, 5),
    Sketcher.Constraint("Equal", 5, 6),
    Sketcher.Constraint("Equal", 6, 7),
    Sketcher.Constraint("Symmetric", 0, 3, 1, 3, -2),
    Sketcher.Constraint("Symmetric", 2, 3, 3, 3, -2),
    Sketcher.Constraint("Symmetric", 4, 3, 5, 3, -2),
    Sketcher.Constraint("Symmetric", 6, 3, 7, 3, -2),
    Sketcher.Constraint("Vertical", 1, 3, 2, 3),
    Sketcher.Constraint("Vertical", 4, 3, 6, 3),
    Sketcher.Constraint("Diameter", 0, 3.4),
    Sketcher.Constraint("DistanceX", -1, 1, 0, 3, 11.0),
    Sketcher.Constraint("DistanceY", 0, 3, -1, 1, 14.0),
    Sketcher.Constraint("DistanceY", -1, 1, 2, 3, 45.0),
    Sketcher.Constraint("DistanceX", 4, 3, -1, 1, 14.0),
    Sketcher.Constraint("DistanceY", -1, 1, 4, 3, 39.0),
    Sketcher.Constraint("DistanceY", 6, 3, -1, 1, 8.0),
])
doc.recompute()
hole2 = doc.addObject("PartDesign::Hole", "Hole001")
body.addObject(hole2)
hole2.Profile = sketch6
hole2.ThreadType = "None"
hole2.Diameter = 3.4
hole2.DepthType = "Dimension"
hole2.Depth = 7.25
hole2.DrillPoint = "Angled"
hole2.DrillPointAngle = 118
hole2.HoleCutType = "Countersink"
hole2.HoleCutDiameter = 6.3
hole2.HoleCutCountersinkAngle = 90
hole2.Reversed = True

sketch7 = doc.addObject("Sketcher::SketchObject", "Sketch006")
body.addObject(sketch7)
sketch7.AttachmentSupport = (doc.XZ_Plane, [""])
sketch7.MapMode = "FlatFace"
sketch7.AttachmentOffset = App.Placement(V(0, 0, -3), App.Rotation())
sketch7.addGeometry([
    Part.Circle(V(-29.5, -76, 0), V(0, 0, 1), 1.2),
    Part.Circle(V(-29.5, -68, 0), V(0, 0, 1), 1.2),
    Part.Circle(V(29.5, -76, 0), V(0, 0, 1), 1.2),
    Part.Circle(V(29.5, -68, 0), V(0, 0, 1), 1.2),
], False)
sketch7.addConstraint([
    Sketcher.Constraint("Equal", 0, 1),
    Sketcher.Constraint("Equal", 1, 2),
    Sketcher.Constraint("Equal", 2, 3),
    Sketcher.Constraint("Symmetric", 0, 3, 2, 3, -2),
    Sketcher.Constraint("Symmetric", 1, 3, 3, 3, -2),
    Sketcher.Constraint("Vertical", 0, 3, 1, 3),
    Sketcher.Constraint("Diameter", 0, 2.4),
    Sketcher.Constraint("DistanceY", 0, 3, -1, 1, 76.0),
    Sketcher.Constraint("DistanceY", 1, 3, -1, 1, 68.0),
    Sketcher.Constraint("DistanceX", 0, 3, 2, 3, 59.0),
])
doc.recompute()
hole3 = doc.addObject("PartDesign::Hole", "Hole002")
body.addObject(hole3)
hole3.Profile = sketch7
hole3.ThreadType = "None"
hole3.Diameter = 2.4
hole3.DepthType = "Dimension"
hole3.Depth = 10
hole3.DrillPoint = "Angled"
hole3.DrillPointAngle = 118
hole3.HoleCutType = "Countersink"
hole3.HoleCutDiameter = 4.4
hole3.HoleCutCountersinkAngle = 90
hole3.Reversed = True

doc.recompute()
